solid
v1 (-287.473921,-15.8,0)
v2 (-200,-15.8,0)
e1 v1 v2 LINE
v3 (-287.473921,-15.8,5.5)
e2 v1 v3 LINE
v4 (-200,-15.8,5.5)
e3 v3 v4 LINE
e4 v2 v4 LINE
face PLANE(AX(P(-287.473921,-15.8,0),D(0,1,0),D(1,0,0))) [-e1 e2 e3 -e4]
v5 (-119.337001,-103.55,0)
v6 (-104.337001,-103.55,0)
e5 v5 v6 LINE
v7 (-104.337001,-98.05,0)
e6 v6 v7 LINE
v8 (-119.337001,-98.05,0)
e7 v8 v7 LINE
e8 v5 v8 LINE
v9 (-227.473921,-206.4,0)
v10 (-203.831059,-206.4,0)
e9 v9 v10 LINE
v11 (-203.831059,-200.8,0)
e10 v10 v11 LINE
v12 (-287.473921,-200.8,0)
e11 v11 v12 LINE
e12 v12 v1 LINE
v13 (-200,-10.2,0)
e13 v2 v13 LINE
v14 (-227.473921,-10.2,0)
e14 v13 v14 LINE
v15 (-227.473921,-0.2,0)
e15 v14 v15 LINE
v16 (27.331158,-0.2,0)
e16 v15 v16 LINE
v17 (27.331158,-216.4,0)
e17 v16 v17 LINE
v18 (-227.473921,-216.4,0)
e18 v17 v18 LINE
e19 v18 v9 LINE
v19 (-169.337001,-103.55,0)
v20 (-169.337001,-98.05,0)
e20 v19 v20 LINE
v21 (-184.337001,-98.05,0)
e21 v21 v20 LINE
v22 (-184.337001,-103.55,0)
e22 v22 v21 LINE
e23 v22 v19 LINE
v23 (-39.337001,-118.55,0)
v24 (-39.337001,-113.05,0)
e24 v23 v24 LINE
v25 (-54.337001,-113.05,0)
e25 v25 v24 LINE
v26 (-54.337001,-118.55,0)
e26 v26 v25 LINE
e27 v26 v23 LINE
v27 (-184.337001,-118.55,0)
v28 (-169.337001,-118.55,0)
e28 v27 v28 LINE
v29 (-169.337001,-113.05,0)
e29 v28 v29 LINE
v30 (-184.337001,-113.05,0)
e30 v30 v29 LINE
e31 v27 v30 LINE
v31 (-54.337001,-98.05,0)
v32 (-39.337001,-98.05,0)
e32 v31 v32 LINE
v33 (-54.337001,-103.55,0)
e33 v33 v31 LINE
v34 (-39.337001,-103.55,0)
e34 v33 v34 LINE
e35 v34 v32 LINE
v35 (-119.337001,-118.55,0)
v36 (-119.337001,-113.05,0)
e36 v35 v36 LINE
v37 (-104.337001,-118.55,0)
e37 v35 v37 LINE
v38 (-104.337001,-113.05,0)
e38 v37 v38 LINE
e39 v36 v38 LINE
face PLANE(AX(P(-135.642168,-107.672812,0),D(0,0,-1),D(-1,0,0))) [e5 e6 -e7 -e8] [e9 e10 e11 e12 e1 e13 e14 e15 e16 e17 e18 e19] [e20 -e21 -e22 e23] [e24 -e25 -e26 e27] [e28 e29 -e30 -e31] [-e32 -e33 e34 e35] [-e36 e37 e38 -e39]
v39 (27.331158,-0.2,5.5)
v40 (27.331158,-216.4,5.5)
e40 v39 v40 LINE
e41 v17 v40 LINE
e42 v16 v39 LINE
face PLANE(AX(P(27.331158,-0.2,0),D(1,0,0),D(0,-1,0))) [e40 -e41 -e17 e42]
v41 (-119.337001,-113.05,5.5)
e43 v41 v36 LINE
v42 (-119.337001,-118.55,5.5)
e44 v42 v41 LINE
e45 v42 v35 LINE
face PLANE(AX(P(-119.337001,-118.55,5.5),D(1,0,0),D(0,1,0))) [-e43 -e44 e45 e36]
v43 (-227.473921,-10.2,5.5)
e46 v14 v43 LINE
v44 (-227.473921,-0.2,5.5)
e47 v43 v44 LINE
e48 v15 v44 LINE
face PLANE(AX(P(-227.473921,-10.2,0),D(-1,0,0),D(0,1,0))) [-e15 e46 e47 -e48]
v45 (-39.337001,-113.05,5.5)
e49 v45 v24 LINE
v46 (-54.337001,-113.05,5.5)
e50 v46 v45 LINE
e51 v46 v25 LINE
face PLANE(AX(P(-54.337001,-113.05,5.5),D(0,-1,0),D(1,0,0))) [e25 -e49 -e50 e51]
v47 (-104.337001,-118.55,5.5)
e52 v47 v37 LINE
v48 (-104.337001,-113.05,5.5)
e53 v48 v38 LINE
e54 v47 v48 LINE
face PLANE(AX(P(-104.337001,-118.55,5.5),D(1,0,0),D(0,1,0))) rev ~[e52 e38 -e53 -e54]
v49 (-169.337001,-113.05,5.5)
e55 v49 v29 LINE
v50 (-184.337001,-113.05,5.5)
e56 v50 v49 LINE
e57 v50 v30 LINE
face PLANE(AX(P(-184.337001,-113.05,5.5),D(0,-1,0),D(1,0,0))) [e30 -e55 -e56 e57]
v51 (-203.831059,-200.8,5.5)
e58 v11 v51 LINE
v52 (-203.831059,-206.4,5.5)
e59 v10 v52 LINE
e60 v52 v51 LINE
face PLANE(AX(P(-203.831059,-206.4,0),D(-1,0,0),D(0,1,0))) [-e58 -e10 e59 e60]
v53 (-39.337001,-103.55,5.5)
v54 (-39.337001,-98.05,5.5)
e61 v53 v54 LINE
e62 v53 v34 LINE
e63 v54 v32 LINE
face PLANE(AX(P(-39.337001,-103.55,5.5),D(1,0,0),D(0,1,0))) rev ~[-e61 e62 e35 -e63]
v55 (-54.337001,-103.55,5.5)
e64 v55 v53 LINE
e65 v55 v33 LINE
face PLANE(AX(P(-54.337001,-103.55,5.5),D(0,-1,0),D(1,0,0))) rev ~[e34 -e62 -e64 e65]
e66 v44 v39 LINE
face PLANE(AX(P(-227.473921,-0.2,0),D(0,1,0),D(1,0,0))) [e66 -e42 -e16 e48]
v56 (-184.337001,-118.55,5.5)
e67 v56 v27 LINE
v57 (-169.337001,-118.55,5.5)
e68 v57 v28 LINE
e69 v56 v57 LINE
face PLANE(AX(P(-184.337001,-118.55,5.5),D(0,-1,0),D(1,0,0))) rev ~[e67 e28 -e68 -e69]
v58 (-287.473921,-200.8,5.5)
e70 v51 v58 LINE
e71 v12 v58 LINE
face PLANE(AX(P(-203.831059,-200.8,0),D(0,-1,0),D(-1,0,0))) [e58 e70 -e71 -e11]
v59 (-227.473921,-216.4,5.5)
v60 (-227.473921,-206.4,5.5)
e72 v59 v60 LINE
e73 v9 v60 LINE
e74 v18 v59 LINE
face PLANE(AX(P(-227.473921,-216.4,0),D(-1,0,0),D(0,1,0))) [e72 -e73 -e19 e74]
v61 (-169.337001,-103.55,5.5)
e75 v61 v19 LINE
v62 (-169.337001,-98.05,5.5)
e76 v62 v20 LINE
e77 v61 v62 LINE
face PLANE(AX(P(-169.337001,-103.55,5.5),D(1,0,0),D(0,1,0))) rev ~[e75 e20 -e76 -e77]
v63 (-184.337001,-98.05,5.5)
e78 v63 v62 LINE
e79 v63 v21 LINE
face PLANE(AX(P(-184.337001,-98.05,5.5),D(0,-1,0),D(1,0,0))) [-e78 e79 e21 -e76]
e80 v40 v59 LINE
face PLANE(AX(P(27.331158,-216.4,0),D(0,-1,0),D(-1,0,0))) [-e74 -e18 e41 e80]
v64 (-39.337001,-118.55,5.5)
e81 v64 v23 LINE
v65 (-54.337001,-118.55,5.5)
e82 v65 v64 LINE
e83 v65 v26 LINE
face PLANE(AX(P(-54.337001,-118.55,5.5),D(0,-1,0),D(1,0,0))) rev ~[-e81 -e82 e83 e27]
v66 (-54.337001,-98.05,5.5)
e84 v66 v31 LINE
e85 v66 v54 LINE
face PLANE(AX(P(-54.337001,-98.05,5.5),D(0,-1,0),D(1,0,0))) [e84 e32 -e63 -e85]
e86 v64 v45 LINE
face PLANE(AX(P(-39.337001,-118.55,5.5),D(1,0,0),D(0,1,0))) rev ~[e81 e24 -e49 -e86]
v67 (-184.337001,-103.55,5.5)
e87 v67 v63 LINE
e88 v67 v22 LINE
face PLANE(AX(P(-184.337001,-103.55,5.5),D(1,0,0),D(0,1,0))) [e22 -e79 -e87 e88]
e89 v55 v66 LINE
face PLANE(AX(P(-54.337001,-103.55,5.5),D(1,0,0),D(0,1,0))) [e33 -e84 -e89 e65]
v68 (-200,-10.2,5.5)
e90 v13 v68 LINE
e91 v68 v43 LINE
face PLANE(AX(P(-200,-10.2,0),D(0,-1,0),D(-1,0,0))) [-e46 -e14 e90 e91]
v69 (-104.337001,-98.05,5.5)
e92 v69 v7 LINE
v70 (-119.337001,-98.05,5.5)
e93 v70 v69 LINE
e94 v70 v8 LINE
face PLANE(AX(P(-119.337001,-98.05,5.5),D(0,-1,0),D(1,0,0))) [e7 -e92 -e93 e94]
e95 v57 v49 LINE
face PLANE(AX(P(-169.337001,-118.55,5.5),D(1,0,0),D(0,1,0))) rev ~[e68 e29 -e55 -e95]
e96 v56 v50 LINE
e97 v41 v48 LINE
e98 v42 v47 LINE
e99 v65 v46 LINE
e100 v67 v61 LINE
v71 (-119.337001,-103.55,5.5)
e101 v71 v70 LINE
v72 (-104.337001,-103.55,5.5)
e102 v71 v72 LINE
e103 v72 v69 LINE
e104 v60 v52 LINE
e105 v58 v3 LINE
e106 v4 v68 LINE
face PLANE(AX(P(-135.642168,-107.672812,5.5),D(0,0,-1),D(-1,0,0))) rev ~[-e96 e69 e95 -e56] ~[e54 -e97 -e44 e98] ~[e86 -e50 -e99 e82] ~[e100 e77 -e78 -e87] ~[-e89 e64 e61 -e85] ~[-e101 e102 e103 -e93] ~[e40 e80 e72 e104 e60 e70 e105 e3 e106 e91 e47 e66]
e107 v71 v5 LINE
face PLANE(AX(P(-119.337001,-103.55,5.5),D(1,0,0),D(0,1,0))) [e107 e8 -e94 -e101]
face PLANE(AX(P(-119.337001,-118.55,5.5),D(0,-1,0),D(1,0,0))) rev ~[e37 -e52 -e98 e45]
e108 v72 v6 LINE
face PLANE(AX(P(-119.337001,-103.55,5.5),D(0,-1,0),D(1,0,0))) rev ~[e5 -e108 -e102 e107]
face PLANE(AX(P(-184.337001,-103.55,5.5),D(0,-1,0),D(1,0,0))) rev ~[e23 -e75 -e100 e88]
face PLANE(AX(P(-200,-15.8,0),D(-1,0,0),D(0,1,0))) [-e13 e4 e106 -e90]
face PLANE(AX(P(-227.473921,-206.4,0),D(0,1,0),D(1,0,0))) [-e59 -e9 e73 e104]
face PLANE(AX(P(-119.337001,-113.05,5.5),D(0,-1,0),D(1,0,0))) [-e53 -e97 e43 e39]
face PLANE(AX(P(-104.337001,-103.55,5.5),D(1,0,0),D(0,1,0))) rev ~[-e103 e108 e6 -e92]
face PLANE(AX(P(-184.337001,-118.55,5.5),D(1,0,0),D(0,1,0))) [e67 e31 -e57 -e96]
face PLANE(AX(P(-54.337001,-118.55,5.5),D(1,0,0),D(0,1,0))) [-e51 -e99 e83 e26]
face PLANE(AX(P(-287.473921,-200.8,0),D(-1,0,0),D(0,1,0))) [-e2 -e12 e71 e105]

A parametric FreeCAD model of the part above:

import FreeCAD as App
import Part
import Sketcher
from FreeCAD import Vector

doc = App.newDocument("Part")
params = doc.addObject("Spreadsheet::Sheet", "Params")
for row, (alias, value) in enumerate([
    ("sketch1_height", "10 mm"),
    ("sketch1_height2", "185 mm"),
    ("sketch1_height3", "216.2 mm"),
    ("pad1_length", "5.5 mm"),
    ("sketch2_width", "15 mm"),
    ("sketch2_height", "5.5 mm"),
    ("pocket1_length", "5.5 mm"),
], start=1):
    params.set(f"A{row}", alias)
    params.set(f"B{row}", "=" + value)
    params.setAlias(f"B{row}", alias)

body = doc.addObject("PartDesign::Body", "Body")

sketch1 = body.newObject("Sketcher::SketchObject", "Sketch")
sketch1.AttachmentSupport = (doc.getObject("XY_Plane"), [""])
sketch1.MapMode = "FlatFace"
sketch1.addGeometry([
    Part.LineSegment(Vector(27.331158, -216.4, 0), Vector(27.331158, -0.2, 0)),
    Part.LineSegment(Vector(27.331158, -0.2, 0), Vector(-227.473921, -0.2, 0)),
    Part.LineSegment(Vector(-227.473921, -0.2, 0), Vector(-227.473921, -10.2, 0)),
    Part.LineSegment(Vector(-227.473921, -10.2, 0), Vector(-200, -10.2, 0)),
    Part.LineSegment(Vector(-200, -10.2, 0), Vector(-200, -15.8, 0)),
    Part.LineSegment(Vector(-200, -15.8, 0), Vector(-287.473921, -15.8, 0)),
    Part.LineSegment(Vector(-287.473921, -15.8, 0), Vector(-287.473921, -200.8, 0)),
    Part.LineSegment(Vector(-287.473921, -200.8, 0), Vector(-203.831059, -200.8, 0)),
    Part.LineSegment(Vector(-203.831059, -200.8, 0), Vector(-203.831059, -206.4, 0)),
    Part.LineSegment(Vector(-203.831059, -206.4, 0), Vector(-227.473921, -206.4, 0)),
    Part.LineSegment(Vector(-227.473921, -206.4, 0), Vector(-227.473921, -216.4, 0)),
    Part.LineSegment(Vector(-227.473921, -216.4, 0), Vector(27.331158, -216.4, 0)),
], False)
sketch1.addConstraint([
    Sketcher.Constraint("Coincident", 0, 2, 1, 1),
    Sketcher.Constraint("Coincident", 1, 2, 2, 1),
    Sketcher.Constraint("Coincident", 2, 2, 3, 1),
    Sketcher.Constraint("Coincident", 3, 2, 4, 1),
    Sketcher.Constraint("Coincident", 4, 2, 5, 1),
    Sketcher.Constraint("Coincident", 5, 2, 6, 1),
    Sketcher.Constraint("Coincident", 6, 2, 7, 1),
    Sketcher.Constraint("Coincident", 7, 2, 8, 1),
    Sketcher.Constraint("Coincident", 8, 2, 9, 1),
    Sketcher.Constraint("Coincident", 9, 2, 10, 1),
    Sketcher.Constraint("Coincident", 10, 2, 11, 1),
    Sketcher.Constraint("Coincident", 11, 2, 0, 1),
    Sketcher.Constraint("Vertical", 0),
    Sketcher.Constraint("Horizontal", 1),
    Sketcher.Constraint("Vertical", 2),
    Sketcher.Constraint("Horizontal", 3),
    Sketcher.Constraint("Vertical", 4),
    Sketcher.Constraint("Horizontal", 5),
    Sketcher.Constraint("Vertical", 6),
    Sketcher.Constraint("Horizontal", 7),
    Sketcher.Constraint("Vertical", 8),
    Sketcher.Constraint("Horizontal", 9),
    Sketcher.Constraint("Vertical", 10),
    Sketcher.Constraint("Horizontal", 11),
    Sketcher.Constraint("Vertical", 2, 2, 9, 2),
    Sketcher.Constraint("Equal", 4, 8),
    Sketcher.Constraint("Equal", 2, 10),
    Sketcher.Constraint("DistanceY", 2, 2, 2, 1, 10.0),
    Sketcher.Constraint("DistanceY", 6, 2, 6, 1, 185.0),
    Sketcher.Constraint("DistanceY", 0, 1, 0, 2, 216.2),
    Sketcher.Constraint("DistanceX", 3, 2, -1, 1, 200.0),
    Sketcher.Constraint("DistanceX", 5, 2, 2, 2, 60.0),
    Sketcher.Constraint("DistanceY", 0, 2, -1, 1, 0.2),
    Sketcher.Constraint("DistanceX", 1, 2, 1, 1, 254.805079),
    Sketcher.Constraint("DistanceX", 3, 1, 3, 2, 27.473921),
    Sketcher.Constraint("DistanceX", 7, 1, 7, 2, 83.642862),
])
sketch1.setExpression("Constraints[27]", "Params.sketch1_height")
sketch1.setExpression("Constraints[28]", "Params.sketch1_height2")
sketch1.setExpression("Constraints[29]", "Params.sketch1_height3")
pad1 = body.newObject("PartDesign::Pad", "Pad")
pad1.Profile = sketch1
pad1.setExpression("Length", "Params.pad1_length")

sketch2 = body.newObject("Sketcher::SketchObject", "Sketch001")
sketch2.AttachmentSupport = (doc.getObject("XY_Plane"), [""])
sketch2.MapMode = "FlatFace"
sketch2.AttachmentOffset = App.Placement(Vector(0, 0, 5.5), App.Rotation())
sketch2.addGeometry([
    Part.LineSegment(Vector(-54.337001, -113.05, 0), Vector(-54.337001, -118.55, 0)),
    Part.LineSegment(Vector(-54.337001, -118.55, 0), Vector(-39.337001, -118.55, 0)),
    Part.LineSegment(Vector(-39.337001, -118.55, 0), Vector(-39.337001, -113.05, 0)),
    Part.LineSegment(Vector(-39.337001, -113.05, 0), Vector(-54.337001, -113.05, 0)),
    Part.LineSegment(Vector(-119.337001, -98.05, 0), Vector(-119.337001, -103.55, 0)),
    Part.LineSegment(Vector(-119.337001, -103.55, 0), Vector(-104.337001, -103.55, 0)),
    Part.LineSegment(Vector(-104.337001, -103.55, 0), Vector(-104.337001, -98.05, 0)),
    Part.LineSegment(Vector(-104.337001, -98.05, 0), Vector(-119.337001, -98.05, 0)),
    Part.LineSegment(Vector(-184.337001, -98.05, 0), Vector(-184.337001, -103.55, 0)),
    Part.LineSegment(Vector(-184.337001, -103.55, 0), Vector(-169.337001, -103.55, 0)),
    Part.LineSegment(Vector(-169.337001, -103.55, 0), Vector(-169.337001, -98.05, 0)),
    Part.LineSegment(Vector(-169.337001, -98.05, 0), Vector(-184.337001, -98.05, 0)),
    Part.LineSegment(Vector(-54.337001, -98.05, 0), Vector(-54.337001, -103.55, 0)),
    Part.LineSegment(Vector(-54.337001, -103.55, 0), Vector(-39.337001, -103.55, 0)),
    Part.LineSegment(Vector(-39.337001, -103.55, 0), Vector(-39.337001, -98.05, 0)),
    Part.LineSegment(Vector(-39.337001, -98.05, 0), Vector(-54.337001, -98.05, 0)),
    Part.LineSegment(Vector(-119.337001, -113.05, 0), Vector(-119.337001, -118.55, 0)),
    Part.LineSegment(Vector(-119.337001, -118.55, 0), Vector(-104.337001, -118.55, 0)),
    Part.LineSegment(Vector(-104.337001, -118.55, 0), Vector(-104.337001, -113.05, 0)),
    Part.LineSegment(Vector(-104.337001, -113.05, 0), Vector(-119.337001, -113.05, 0)),
    Part.LineSegment(Vector(-184.337001, -113.05, 0), Vector(-184.337001, -118.55, 0)),
    Part.LineSegment(Vector(-184.337001, -118.55, 0), Vector(-169.337001, -118.55, 0)),
    Part.LineSegment(Vector(-169.337001, -118.55, 0), Vector(-169.337001, -113.05, 0)),
    Part.LineSegment(Vector(-169.337001, -113.05, 0), Vector(-184.337001, -113.05, 0)),
], False)
sketch2.addConstraint([
    Sketcher.Constraint("Coincident", 0, 2, 1, 1),
    Sketcher.Constraint("Coincident", 1, 2, 2, 1),
    Sketcher.Constraint("Coincident", 2, 2, 3, 1),
    Sketcher.Constraint("Coincident", 3, 2, 0, 1),
    Sketcher.Constraint("Coincident", 4, 2, 5, 1),
    Sketcher.Constraint("Coincident", 5, 2, 6, 1),
    Sketcher.Constraint("Coincident", 6, 2, 7, 1),
    Sketcher.Constraint("Coincident", 7, 2, 4, 1),
    Sketcher.Constraint("Coincident", 8, 2, 9, 1),
    Sketcher.Constraint("Coincident", 9, 2, 10, 1),
    Sketcher.Constraint("Coincident", 10, 2, 11, 1),
    Sketcher.Constraint("Coincident", 11, 2, 8, 1),
    Sketcher.Constraint("Coincident", 12, 2, 13, 1),
    Sketcher.Constraint("Coincident", 13, 2, 14, 1),
    Sketcher.Constraint("Coincident", 14, 2, 15, 1),
    Sketcher.Constraint("Coincident", 15, 2, 12, 1),
    Sketcher.Constraint("Coincident", 16, 2, 17, 1),
    Sketcher.Constraint("Coincident", 17, 2, 18, 1),
    Sketcher.Constraint("Coincident", 18, 2, 19, 1),
    Sketcher.Constraint("Coincident", 19, 2, 16, 1),
    Sketcher.Constraint("Coincident", 20, 2, 21, 1),
    Sketcher.Constraint("Coincident", 21, 2, 22, 1),
    Sketcher.Constraint("Coincident", 22, 2, 23, 1),
    Sketcher.Constraint("Coincident", 23, 2, 20, 1),
    Sketcher.Constraint("Vertical", 0),
    Sketcher.Constraint("Horizontal", 1),
    Sketcher.Constraint("Vertical", 2),
    Sketcher.Constraint("Horizontal", 3),
    Sketcher.Constraint("Vertical", 4),
    Sketcher.Constraint("Horizontal", 5),
    Sketcher.Constraint("Vertical", 6),
    Sketcher.Constraint("Horizontal", 7),
    Sketcher.Constraint("Vertical", 8),
    Sketcher.Constraint("Horizontal", 9),
    Sketcher.Constraint("Vertical", 10),
    Sketcher.Constraint("Horizontal", 11),
    Sketcher.Constraint("Vertical", 12),
    Sketcher.Constraint("Horizontal", 13),
    Sketcher.Constraint("Vertical", 14),
    Sketcher.Constraint("Horizontal", 15),
    Sketcher.Constraint("Vertical", 16),
    Sketcher.Constraint("Horizontal", 17),
    Sketcher.Constraint("Vertical", 18),
    Sketcher.Constraint("Horizontal", 19),
    Sketcher.Constraint("Vertical", 20),
    Sketcher.Constraint("Horizontal", 21),
    Sketcher.Constraint("Vertical", 22),
    Sketcher.Constraint("Horizontal", 23),
    Sketcher.Constraint("Horizontal", 5, 2, 8, 2),
    Sketcher.Constraint("Horizontal", 7, 2, 10, 2),
    Sketcher.Constraint("Horizontal", 9, 2, 12, 2),
    Sketcher.Constraint("Horizontal", 11, 2, 14, 2),
    Sketcher.Constraint("Horizontal", 1, 2, 16, 2),
    Sketcher.Constraint("Horizontal", 3, 2, 18, 2),
    Sketcher.Constraint("Horizontal", 17, 2, 20, 2),
    Sketcher.Constraint("Horizontal", 19, 2, 22, 2),
    Sketcher.Constraint("Vertical", 3, 2, 12, 2),
    Sketcher.Constraint("Vertical", 2, 2, 13, 2),
    Sketcher.Constraint("Vertical", 7, 2, 16, 2),
    Sketcher.Constraint("Vertical", 6, 2, 17, 2),
    Sketcher.Constraint("Vertical", 11, 2, 20, 2),
    Sketcher.Constraint("Vertical", 10, 2, 21, 2),
    Sketcher.Constraint("Equal", 3, 5),
    Sketcher.Constraint("Equal", 7, 9),
    Sketcher.Constraint("Equal", 2, 4),
    Sketcher.Constraint("DistanceX", 1, 1, 1, 2, 15.0),
    Sketcher.Constraint("DistanceY", 0, 2, 0, 1, 5.5),
    Sketcher.Constraint("DistanceX", 4, 2, 3, 2, 65.0),
    Sketcher.Constraint("DistanceY", 0, 2, 4, 2, 15.0),
    Sketcher.Constraint("DistanceX", 8, 2, 4, 2, 65.0),
    Sketcher.Constraint("DistanceY", 0, 2, -1, 1, 118.55),
    Sketcher.Constraint("DistanceX", 0, 2, -1, 1, 54.337001),
])
sketch2.setExpression("Constraints[65]", "Params.sketch2_width")
sketch2.setExpression("Constraints[66]", "Params.sketch2_height")
pocket1 = body.newObject("PartDesign::Pocket", "Pocket")
pocket1.Profile = sketch2
pocket1.setExpression("Length", "Params.pocket1_length")

doc.recompute()
